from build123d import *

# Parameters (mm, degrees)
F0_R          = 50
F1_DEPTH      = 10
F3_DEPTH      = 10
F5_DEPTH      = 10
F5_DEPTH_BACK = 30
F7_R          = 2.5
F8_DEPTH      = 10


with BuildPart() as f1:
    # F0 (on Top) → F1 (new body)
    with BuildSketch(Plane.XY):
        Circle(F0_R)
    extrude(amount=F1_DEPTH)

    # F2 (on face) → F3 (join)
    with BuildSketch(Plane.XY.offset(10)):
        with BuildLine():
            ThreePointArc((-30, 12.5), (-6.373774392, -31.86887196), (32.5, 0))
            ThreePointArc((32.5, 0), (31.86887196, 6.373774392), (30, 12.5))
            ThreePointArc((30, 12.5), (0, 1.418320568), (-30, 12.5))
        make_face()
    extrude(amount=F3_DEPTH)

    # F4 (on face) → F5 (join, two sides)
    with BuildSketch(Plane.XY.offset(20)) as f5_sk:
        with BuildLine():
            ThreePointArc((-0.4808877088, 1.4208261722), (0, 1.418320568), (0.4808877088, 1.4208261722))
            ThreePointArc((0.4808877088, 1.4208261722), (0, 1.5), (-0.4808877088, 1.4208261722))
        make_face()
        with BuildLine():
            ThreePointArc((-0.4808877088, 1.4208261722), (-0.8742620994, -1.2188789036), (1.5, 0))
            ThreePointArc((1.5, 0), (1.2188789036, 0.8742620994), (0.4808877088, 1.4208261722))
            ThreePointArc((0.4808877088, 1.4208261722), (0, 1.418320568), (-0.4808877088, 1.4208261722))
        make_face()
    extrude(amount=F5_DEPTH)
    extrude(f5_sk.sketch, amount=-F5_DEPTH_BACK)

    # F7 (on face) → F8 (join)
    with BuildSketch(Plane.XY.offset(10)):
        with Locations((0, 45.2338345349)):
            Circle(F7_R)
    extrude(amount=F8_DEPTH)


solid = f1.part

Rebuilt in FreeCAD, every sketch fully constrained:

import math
import FreeCAD as App
import Part
import Sketcher
Q = App.Units.Quantity

doc = App.newDocument("Part")
body = doc.addObject("PartDesign::Body", "Body")

# Sketch on XY plane
sketch1 = body.newObject("Sketcher::SketchObject", "Sketch")
sketch1.AttachmentSupport = (doc.getObject("XY_Plane"), [""])
sketch1.MapMode = "FlatFace"
sketch1.addGeometry(Part.Circle(App.Vector(0, 0, 0), App.Vector(0, 0, 1), 50), False)
sketch1.addConstraint(Sketcher.Constraint("Coincident", 0, 3, -1, 1))
sketch1.addConstraint(Sketcher.Constraint("Diameter", 0, Q("100 mm")))
pad1 = body.newObject("PartDesign::Pad", "Pad")
pad1.Profile = sketch1
pad1.Length = 10

# Sketch on XY plane
sketch2 = body.newObject("Sketcher::SketchObject", "Sketch001")
sketch2.AttachmentSupport = (doc.getObject("XY_Plane"), [""])
sketch2.MapMode = "FlatFace"
sketch2.AttachmentOffset = App.Placement(App.Vector(0, 0, 10), App.Rotation())
sketch2.addGeometry(Part.ArcOfCircle(Part.Circle(App.Vector(0, 0, 0), App.Vector(0, 0, 1), 32), math.radians(157), math.radians(360)), False)
sketch2.addGeometry(Part.ArcOfCircle(Part.Circle(App.Vector(0, 0, 0), App.Vector(0, 0, 1), 32), math.radians(0), math.radians(23)), False)
sketch2.addGeometry(Part.ArcOfCircle(Part.Circle(App.Vector(0, 48, 0), App.Vector(0, 0, 1), 46), math.radians(-131), math.radians(-49)), False)
sketch2.addConstraint(Sketcher.Constraint("Tangent", 0, 2, 1, 1))
sketch2.addConstraint(Sketcher.Constraint("Coincident", 1, 2, 2, 2))
sketch2.addConstraint(Sketcher.Constraint("Coincident", 2, 1, 0, 1))
sketch2.addConstraint(Sketcher.Constraint("Coincident", 0, 3, -1, 1))
sketch2.addConstraint(Sketcher.Constraint("Equal", 0, 1))
sketch2.addConstraint(Sketcher.Constraint("PointOnObject", 2, 3, -2))
sketch2.addConstraint(Sketcher.Constraint("PointOnObject", 0, 2, -1))
sketch2.addConstraint(Sketcher.Constraint("Radius", 0, Q("32.5 mm")))
sketch2.addConstraint(Sketcher.Constraint("DistanceX", -1, 1, 1, 2, Q("30 mm")))
sketch2.addConstraint(Sketcher.Constraint("Radius", 2, Q("46.148403 mm")))
pad2 = body.newObject("PartDesign::Pad", "Pad001")
pad2.Profile = sketch2
pad2.Length = 10

# Sketch on XY plane
sketch3 = body.newObject("Sketcher::SketchObject", "Sketch002")
sketch3.AttachmentSupport = (doc.getObject("XY_Plane"), [""])
sketch3.MapMode = "FlatFace"
sketch3.AttachmentOffset = App.Placement(App.Vector(0, 0, 20), App.Rotation())
sketch3.addGeometry(Part.ArcOfCircle(Part.Circle(App.Vector(0, 0, 0), App.Vector(0, 0, 1), 1.5), math.radians(71), math.radians(109)), False)
sketch3.addGeometry(Part.ArcOfCircle(Part.Circle(App.Vector(0, 0, 0), App.Vector(0, 0, 1), 1.5), math.radians(109), math.radians(360)), False)
sketch3.addGeometry(Part.ArcOfCircle(Part.Circle(App.Vector(0, 0, 0), App.Vector(0, 0, 1), 1.5), math.radians(0), math.radians(71)), False)
sketch3.addConstraint(Sketcher.Constraint("Tangent", 0, 2, 1, 1))
sketch3.addConstraint(Sketcher.Constraint("Tangent", 1, 2, 2, 1))
sketch3.addConstraint(Sketcher.Constraint("Tangent", 2, 2, 0, 1))
sketch3.addConstraint(Sketcher.Constraint("Coincident", 0, 3, -1, 1))
sketch3.addConstraint(Sketcher.Constraint("PointOnObject", 1, 2, -1))
sketch3.addConstraint(Sketcher.Constraint("Horizontal", 0, 2, 2, 2))
sketch3.addConstraint(Sketcher.Constraint("Radius", 0, Q("1.5 mm")))
sketch3.addConstraint(Sketcher.Constraint("DistanceX", 0, 2, -1, 1, Q("0.480888 mm")))
pad3 = body.newObject("PartDesign::Pad", "Pad002")
pad3.Profile = sketch3
pad3.Type = "TwoLengths"
pad3.Length = 10
pad3.Length2 = 30

# Sketch on XY plane
sketch4 = body.newObject("Sketcher::SketchObject", "Sketch003")
sketch4.AttachmentSupport = (doc.getObject("XY_Plane"), [""])
sketch4.MapMode = "FlatFace"
sketch4.AttachmentOffset = App.Placement(App.Vector(0, 0, 10), App.Rotation())
sketch4.addGeometry(Part.Circle(App.Vector(0, 45.2, 0), App.Vector(0, 0, 1), 2.5), False)
sketch4.addConstraint(Sketcher.Constraint("PointOnObject", 0, 3, -2))
sketch4.addConstraint(Sketcher.Constraint("Diameter", 0, Q("5 mm")))
sketch4.addConstraint(Sketcher.Constraint("DistanceY", -1, 1, 0, 3, Q("45.233835 mm")))
pad4 = body.newObject("PartDesign::Pad", "Pad003")
pad4.Profile = sketch4
pad4.Length = 10

doc.recompute()
